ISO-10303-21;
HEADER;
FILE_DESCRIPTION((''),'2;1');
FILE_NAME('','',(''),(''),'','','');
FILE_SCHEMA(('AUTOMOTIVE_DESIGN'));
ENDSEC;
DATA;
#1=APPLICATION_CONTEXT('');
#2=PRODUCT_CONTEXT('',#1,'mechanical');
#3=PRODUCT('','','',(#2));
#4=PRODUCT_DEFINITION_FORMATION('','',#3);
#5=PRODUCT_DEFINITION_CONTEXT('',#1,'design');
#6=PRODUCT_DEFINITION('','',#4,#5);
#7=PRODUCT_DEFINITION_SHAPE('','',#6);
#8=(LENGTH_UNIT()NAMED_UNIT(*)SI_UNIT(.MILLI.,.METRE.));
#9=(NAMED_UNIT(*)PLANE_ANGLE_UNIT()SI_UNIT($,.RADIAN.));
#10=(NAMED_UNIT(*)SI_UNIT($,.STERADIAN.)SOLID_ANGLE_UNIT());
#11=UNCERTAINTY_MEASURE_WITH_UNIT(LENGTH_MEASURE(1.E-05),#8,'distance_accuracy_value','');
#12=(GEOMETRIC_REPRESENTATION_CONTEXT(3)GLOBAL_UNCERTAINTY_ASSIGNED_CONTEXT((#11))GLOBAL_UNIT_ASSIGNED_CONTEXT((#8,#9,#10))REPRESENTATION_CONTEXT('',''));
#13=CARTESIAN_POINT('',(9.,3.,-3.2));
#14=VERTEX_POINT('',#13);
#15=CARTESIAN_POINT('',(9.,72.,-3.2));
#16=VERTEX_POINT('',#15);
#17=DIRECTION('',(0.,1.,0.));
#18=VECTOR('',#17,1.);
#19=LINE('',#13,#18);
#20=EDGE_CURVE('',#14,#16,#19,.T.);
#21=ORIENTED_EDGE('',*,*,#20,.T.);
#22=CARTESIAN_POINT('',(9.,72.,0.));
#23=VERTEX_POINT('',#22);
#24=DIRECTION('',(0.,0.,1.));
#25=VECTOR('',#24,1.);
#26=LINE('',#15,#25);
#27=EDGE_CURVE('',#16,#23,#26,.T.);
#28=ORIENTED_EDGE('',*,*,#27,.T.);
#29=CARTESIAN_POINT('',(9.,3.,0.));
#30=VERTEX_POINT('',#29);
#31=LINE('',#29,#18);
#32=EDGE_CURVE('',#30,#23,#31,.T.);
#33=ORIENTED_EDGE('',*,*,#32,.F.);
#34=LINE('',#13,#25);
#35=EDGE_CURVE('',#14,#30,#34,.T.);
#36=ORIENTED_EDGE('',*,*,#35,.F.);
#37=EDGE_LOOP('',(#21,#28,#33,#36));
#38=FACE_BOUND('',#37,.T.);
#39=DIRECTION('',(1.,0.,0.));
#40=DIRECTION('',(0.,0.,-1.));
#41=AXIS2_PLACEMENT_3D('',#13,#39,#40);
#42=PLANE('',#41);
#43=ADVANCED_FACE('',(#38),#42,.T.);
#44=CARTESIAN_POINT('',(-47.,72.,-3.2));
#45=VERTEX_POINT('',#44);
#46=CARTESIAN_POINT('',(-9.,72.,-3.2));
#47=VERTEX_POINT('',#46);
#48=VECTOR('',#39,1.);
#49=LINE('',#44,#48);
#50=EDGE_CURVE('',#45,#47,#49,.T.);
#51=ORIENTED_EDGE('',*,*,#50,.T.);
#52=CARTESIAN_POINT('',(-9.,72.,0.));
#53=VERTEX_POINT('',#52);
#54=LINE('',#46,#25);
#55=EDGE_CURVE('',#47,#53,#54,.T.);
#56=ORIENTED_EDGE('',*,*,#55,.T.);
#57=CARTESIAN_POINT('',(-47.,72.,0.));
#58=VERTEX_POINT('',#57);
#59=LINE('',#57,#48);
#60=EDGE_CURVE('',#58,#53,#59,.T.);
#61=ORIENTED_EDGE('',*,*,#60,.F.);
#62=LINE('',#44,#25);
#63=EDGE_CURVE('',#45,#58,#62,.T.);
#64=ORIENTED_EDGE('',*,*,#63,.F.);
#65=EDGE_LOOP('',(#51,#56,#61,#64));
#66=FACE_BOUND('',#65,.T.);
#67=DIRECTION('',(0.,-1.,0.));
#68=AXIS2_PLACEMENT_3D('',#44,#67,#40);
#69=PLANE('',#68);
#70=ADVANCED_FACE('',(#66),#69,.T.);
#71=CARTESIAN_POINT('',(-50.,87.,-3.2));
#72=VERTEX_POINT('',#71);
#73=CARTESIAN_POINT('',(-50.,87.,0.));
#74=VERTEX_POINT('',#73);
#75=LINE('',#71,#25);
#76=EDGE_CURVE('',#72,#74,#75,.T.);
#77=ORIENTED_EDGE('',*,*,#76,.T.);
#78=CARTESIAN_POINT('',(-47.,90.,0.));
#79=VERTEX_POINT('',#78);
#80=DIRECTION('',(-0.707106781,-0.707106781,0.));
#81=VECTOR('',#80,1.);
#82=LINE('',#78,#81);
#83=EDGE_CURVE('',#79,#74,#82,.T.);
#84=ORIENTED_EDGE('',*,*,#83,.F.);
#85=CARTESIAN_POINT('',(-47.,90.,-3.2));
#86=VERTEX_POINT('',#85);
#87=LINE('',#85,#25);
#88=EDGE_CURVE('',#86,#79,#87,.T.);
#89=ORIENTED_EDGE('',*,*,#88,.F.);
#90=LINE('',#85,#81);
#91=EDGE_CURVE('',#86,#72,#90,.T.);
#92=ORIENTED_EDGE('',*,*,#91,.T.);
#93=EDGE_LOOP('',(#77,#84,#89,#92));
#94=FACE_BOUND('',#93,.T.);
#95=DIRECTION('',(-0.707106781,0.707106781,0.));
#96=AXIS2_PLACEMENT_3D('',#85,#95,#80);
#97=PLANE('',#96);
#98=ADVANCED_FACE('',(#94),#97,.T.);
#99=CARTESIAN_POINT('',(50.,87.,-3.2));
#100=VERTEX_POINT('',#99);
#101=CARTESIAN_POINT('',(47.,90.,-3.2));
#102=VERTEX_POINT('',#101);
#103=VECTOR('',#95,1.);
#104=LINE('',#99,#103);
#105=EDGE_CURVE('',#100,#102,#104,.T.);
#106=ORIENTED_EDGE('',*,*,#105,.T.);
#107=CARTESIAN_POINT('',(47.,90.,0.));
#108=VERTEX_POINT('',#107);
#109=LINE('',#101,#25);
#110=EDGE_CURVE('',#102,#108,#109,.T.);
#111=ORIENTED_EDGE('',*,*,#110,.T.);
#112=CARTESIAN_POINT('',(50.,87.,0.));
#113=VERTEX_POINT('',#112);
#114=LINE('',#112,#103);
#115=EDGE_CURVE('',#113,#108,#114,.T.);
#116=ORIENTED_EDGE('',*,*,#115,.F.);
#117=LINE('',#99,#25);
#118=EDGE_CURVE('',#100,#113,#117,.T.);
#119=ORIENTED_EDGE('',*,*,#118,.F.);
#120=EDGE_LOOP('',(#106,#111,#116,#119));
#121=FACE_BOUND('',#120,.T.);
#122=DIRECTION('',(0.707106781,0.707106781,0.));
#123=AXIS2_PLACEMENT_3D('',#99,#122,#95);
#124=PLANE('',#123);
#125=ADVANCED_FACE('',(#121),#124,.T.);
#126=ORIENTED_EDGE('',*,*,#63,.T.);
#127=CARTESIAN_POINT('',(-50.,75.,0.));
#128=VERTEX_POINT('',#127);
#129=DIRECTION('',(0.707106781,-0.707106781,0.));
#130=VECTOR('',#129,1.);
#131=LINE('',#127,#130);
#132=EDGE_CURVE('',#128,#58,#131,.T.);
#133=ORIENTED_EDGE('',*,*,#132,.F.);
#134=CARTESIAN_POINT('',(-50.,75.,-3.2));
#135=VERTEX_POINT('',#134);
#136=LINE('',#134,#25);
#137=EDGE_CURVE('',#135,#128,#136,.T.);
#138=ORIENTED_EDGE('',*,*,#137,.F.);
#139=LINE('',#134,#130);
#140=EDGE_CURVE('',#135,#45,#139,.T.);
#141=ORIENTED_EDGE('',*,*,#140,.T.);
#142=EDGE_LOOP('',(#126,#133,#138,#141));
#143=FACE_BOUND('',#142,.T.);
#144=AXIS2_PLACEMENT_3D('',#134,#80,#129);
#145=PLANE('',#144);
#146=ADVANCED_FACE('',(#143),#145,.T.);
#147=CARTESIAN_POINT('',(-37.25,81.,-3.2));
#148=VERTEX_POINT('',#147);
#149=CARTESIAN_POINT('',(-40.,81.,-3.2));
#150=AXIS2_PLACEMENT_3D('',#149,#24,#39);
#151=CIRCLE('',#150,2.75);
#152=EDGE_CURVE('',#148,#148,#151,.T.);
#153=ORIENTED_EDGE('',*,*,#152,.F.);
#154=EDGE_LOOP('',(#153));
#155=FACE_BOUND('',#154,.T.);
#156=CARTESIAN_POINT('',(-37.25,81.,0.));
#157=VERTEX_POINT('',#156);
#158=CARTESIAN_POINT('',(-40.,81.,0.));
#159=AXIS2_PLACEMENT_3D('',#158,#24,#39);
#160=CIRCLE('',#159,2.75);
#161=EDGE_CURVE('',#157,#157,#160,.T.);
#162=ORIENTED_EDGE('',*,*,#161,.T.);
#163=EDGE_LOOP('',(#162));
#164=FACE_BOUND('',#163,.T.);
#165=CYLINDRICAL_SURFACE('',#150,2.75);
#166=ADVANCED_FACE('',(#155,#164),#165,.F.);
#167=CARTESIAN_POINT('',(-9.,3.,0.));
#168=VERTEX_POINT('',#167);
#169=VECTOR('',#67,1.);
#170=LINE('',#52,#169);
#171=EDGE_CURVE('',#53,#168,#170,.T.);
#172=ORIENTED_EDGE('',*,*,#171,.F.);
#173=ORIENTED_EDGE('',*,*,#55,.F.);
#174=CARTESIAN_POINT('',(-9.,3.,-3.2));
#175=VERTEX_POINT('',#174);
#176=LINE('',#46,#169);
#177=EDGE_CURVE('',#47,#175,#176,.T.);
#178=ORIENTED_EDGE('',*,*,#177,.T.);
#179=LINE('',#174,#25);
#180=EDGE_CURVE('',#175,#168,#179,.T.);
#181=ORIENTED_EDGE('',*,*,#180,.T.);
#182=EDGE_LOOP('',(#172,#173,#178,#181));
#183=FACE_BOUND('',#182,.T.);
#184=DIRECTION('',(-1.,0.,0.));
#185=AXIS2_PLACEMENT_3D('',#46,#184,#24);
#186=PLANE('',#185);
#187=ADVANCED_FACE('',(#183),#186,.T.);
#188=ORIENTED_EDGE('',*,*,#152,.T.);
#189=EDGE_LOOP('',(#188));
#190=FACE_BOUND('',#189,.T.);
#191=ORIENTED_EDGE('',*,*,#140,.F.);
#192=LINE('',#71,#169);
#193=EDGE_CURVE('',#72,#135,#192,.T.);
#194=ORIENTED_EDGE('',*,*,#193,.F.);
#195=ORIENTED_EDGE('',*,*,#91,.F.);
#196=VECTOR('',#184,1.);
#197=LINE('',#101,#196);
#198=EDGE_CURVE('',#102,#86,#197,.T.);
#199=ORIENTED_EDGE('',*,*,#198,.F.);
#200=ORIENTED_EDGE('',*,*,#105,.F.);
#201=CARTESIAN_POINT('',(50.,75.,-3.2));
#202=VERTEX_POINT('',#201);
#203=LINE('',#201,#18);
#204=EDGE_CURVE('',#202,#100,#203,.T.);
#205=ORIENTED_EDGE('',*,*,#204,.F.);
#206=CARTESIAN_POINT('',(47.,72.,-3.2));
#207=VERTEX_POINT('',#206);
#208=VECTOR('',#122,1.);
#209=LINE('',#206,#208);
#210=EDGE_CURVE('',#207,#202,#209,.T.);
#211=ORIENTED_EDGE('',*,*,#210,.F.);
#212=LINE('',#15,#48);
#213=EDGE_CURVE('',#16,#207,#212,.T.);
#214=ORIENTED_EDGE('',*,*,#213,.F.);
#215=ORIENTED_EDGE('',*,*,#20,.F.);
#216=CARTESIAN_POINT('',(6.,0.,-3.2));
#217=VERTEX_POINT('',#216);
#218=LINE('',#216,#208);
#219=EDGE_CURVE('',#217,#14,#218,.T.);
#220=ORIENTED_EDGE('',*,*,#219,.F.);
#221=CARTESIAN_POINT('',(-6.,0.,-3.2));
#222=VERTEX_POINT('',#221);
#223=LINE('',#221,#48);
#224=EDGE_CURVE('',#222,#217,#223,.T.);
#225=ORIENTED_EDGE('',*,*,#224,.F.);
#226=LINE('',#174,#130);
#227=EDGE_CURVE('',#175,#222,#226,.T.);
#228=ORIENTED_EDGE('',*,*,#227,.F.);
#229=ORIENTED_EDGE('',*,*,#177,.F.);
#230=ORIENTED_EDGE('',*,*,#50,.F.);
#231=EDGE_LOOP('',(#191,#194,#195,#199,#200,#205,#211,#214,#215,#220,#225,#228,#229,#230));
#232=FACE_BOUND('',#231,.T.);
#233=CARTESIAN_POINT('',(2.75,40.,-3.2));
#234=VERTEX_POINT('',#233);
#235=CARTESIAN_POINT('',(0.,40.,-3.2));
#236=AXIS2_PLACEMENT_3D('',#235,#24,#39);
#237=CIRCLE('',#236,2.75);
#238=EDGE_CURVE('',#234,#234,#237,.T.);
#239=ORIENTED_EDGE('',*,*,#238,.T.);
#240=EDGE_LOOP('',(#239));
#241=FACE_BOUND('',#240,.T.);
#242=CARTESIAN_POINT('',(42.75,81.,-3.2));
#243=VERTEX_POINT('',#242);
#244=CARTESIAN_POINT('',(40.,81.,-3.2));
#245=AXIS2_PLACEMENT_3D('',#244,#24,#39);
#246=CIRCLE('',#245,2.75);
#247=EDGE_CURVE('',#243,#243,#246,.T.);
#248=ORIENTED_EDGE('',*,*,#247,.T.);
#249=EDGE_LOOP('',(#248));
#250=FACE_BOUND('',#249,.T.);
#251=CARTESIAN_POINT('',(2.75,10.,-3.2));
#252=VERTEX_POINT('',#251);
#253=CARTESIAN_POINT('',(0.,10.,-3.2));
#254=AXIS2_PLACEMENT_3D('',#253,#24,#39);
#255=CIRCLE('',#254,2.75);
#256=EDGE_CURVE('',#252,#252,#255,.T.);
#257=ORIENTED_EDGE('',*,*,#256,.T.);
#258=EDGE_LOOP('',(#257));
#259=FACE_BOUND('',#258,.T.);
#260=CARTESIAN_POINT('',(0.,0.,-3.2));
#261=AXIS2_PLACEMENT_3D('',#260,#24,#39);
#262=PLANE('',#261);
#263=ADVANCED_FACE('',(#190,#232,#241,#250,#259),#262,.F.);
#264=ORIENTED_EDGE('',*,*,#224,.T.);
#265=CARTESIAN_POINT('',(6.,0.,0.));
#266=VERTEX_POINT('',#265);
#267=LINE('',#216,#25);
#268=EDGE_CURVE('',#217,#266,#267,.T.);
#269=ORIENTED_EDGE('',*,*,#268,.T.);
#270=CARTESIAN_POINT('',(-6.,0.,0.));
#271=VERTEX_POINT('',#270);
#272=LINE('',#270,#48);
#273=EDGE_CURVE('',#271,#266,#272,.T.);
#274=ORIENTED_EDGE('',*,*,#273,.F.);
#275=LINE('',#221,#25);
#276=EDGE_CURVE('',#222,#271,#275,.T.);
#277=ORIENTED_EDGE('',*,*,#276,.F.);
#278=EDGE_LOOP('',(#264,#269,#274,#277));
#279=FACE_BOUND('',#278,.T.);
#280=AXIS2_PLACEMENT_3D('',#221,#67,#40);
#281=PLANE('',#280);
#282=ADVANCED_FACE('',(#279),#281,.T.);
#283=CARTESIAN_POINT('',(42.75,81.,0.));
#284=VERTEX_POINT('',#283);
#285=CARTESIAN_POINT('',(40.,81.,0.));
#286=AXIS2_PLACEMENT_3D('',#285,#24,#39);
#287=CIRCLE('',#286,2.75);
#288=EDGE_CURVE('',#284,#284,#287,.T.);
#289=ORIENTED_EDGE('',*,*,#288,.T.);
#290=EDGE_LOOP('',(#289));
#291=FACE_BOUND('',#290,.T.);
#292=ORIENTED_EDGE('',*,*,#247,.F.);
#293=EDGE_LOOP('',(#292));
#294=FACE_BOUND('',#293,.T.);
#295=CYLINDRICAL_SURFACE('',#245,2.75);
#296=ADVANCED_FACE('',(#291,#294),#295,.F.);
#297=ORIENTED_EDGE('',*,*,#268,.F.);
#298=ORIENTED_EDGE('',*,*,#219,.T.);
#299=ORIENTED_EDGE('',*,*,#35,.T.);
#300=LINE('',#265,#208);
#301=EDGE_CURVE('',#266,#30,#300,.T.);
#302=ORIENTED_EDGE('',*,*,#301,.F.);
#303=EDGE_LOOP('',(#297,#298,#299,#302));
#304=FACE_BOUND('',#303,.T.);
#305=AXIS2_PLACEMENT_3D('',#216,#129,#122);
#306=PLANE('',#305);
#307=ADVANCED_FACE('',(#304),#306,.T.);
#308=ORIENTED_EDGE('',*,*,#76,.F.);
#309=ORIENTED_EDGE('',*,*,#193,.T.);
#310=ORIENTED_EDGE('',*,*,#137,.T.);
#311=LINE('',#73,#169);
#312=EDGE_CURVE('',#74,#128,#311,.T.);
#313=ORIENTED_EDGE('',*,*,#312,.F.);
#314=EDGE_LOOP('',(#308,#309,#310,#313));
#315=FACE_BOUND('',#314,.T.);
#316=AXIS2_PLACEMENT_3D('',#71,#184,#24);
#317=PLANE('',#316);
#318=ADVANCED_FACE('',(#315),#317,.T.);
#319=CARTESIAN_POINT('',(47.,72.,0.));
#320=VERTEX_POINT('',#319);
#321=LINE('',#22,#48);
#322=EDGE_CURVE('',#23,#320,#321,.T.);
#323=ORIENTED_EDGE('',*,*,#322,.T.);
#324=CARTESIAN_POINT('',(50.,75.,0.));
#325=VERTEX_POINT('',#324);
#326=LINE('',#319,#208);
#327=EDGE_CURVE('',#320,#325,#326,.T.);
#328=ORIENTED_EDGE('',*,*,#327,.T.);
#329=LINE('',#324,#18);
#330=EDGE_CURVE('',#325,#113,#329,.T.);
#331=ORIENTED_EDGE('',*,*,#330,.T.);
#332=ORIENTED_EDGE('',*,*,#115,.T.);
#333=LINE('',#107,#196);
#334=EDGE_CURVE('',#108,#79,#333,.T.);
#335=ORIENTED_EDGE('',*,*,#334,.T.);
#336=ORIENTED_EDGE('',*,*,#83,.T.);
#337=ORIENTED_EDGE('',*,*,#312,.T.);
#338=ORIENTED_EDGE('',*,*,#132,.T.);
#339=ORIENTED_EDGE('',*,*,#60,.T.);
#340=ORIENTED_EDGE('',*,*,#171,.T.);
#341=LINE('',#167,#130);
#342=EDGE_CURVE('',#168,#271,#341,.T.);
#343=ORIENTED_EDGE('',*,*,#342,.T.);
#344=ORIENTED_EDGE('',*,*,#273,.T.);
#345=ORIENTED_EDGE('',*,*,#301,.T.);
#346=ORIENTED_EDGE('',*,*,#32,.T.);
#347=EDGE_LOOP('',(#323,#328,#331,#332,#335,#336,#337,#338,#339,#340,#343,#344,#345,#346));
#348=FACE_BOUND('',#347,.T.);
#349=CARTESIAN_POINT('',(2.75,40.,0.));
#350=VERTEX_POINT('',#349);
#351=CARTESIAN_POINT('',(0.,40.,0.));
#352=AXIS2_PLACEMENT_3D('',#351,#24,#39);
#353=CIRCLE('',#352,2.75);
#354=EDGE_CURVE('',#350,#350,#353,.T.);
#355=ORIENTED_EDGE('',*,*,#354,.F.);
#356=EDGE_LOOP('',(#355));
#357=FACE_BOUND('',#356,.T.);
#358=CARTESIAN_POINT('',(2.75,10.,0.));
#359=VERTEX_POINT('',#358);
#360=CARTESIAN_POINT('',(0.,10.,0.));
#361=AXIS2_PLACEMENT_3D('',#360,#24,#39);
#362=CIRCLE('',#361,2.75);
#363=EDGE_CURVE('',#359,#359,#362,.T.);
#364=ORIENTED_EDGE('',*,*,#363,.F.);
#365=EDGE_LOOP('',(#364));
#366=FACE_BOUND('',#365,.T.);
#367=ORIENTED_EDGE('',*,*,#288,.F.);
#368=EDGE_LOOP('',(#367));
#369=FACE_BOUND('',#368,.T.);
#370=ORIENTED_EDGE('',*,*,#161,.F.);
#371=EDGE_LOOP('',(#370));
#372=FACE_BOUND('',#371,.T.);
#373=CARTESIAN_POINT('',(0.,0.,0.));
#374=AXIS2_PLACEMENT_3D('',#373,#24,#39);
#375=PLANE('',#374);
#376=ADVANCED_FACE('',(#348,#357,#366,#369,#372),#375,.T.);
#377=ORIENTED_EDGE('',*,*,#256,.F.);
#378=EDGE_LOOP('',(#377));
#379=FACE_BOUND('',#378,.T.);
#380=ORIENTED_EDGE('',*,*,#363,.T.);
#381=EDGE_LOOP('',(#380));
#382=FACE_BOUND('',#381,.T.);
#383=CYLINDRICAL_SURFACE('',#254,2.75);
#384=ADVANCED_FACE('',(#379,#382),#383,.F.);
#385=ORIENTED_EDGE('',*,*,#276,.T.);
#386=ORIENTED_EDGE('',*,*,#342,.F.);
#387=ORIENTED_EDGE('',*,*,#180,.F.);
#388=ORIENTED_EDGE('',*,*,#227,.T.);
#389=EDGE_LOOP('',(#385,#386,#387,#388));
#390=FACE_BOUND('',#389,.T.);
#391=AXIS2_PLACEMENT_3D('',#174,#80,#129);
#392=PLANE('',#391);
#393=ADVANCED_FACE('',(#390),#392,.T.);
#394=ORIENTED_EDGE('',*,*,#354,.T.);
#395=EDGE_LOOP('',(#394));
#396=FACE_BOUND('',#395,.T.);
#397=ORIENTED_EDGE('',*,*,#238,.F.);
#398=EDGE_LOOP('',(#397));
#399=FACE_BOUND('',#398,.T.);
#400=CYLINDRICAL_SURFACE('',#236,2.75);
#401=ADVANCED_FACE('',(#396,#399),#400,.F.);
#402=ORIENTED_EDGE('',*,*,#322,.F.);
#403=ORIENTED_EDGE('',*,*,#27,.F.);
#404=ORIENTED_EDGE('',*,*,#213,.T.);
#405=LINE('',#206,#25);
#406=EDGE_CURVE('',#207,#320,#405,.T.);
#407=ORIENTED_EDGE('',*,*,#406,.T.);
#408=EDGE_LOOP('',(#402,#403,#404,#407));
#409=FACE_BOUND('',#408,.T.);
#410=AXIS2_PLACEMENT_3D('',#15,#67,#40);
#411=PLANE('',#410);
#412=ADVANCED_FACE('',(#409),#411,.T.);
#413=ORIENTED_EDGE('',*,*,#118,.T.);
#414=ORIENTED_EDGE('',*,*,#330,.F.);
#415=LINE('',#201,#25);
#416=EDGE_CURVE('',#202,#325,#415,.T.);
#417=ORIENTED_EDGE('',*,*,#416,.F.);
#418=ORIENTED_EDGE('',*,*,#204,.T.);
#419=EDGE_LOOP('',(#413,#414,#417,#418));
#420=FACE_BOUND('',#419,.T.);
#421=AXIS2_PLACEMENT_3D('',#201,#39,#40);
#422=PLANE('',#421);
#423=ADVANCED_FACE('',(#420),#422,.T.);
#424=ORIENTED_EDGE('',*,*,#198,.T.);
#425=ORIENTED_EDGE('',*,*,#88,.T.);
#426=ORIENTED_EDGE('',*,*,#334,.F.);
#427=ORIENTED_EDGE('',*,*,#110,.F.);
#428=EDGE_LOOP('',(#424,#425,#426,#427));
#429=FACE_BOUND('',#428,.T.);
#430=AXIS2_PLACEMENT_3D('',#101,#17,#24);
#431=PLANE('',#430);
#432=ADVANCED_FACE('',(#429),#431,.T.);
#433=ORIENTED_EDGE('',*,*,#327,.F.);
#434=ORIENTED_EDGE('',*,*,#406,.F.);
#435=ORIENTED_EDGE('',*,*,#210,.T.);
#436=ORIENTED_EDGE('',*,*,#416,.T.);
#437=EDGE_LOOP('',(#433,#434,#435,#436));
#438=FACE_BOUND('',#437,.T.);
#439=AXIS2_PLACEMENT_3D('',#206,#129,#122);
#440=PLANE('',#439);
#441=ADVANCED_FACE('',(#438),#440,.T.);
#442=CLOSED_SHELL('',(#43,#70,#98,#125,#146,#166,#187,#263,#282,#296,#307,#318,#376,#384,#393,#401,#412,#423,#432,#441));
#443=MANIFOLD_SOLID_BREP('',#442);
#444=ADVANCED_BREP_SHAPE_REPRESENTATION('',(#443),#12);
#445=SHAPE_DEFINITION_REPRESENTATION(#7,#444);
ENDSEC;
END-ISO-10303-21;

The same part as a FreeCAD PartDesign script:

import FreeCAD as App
import Part
import Sketcher
Q = App.Units.Quantity

doc = App.newDocument("Part")
body = doc.addObject("PartDesign::Body", "Body")

# Sketch on XY plane
sketch1 = body.newObject("Sketcher::SketchObject", "Sketch")
sketch1.AttachmentSupport = (doc.getObject("XY_Plane"), [""])
sketch1.MapMode = "FlatFace"
sketch1.addGeometry(Part.LineSegment(App.Vector(-50, 75, 0), App.Vector(-47, 72, 0)), False)
sketch1.addGeometry(Part.LineSegment(App.Vector(-47, 72, 0), App.Vector(-9, 72, 0)), False)
sketch1.addGeometry(Part.LineSegment(App.Vector(-9, 72, 0), App.Vector(-9, 3, 0)), False)
sketch1.addGeometry(Part.LineSegment(App.Vector(-9, 3, 0), App.Vector(-6, 0, 0)), False)
sketch1.addGeometry(Part.LineSegment(App.Vector(-6, 0, 0), App.Vector(6, 0, 0)), False)
sketch1.addGeometry(Part.LineSegment(App.Vector(6, 0, 0), App.Vector(9, 3, 0)), False)
sketch1.addGeometry(Part.LineSegment(App.Vector(9, 3, 0), App.Vector(9, 72, 0)), False)
sketch1.addGeometry(Part.LineSegment(App.Vector(9, 72, 0), App.Vector(47, 72, 0)), False)
sketch1.addGeometry(Part.LineSegment(App.Vector(47, 72, 0), App.Vector(50, 75, 0)), False)
sketch1.addGeometry(Part.LineSegment(App.Vector(50, 75, 0), App.Vector(50, 87, 0)), False)
sketch1.addGeometry(Part.LineSegment(App.Vector(50, 87, 0), App.Vector(47, 90, 0)), False)
sketch1.addGeometry(Part.LineSegment(App.Vector(47, 90, 0), App.Vector(-47, 90, 0)), False)
sketch1.addGeometry(Part.LineSegment(App.Vector(-47, 90, 0), App.Vector(-50, 87, 0)), False)
sketch1.addGeometry(Part.LineSegment(App.Vector(-50, 87, 0), App.Vector(-50, 75, 0)), False)
sketch1.addGeometry(Part.Circle(App.Vector(0, 10, 0), App.Vector(0, 0, 1), 2.8), False)
sketch1.addGeometry(Part.Circle(App.Vector(0, 40, 0), App.Vector(0, 0, 1), 2.8), False)
sketch1.addGeometry(Part.Circle(App.Vector(-40, 81, 0), App.Vector(0, 0, 1), 2.8), False)
sketch1.addGeometry(Part.Circle(App.Vector(40, 81, 0), App.Vector(0, 0, 1), 2.8), False)
sketch1.addConstraint(Sketcher.Constraint("Coincident", 0, 2, 1, 1))
sketch1.addConstraint(Sketcher.Constraint("Coincident", 1, 2, 2, 1))
sketch1.addConstraint(Sketcher.Constraint("Coincident", 2, 2, 3, 1))
sketch1.addConstraint(Sketcher.Constraint("Coincident", 3, 2, 4, 1))
sketch1.addConstraint(Sketcher.Constraint("Coincident", 4, 2, 5, 1))
sketch1.addConstraint(Sketcher.Constraint("Coincident", 5, 2, 6, 1))
sketch1.addConstraint(Sketcher.Constraint("Coincident", 6, 2, 7, 1))
sketch1.addConstraint(Sketcher.Constraint("Coincident", 7, 2, 8, 1))
sketch1.addConstraint(Sketcher.Constraint("Coincident", 8, 2, 9, 1))
sketch1.addConstraint(Sketcher.Constraint("Coincident", 9, 2, 10, 1))
sketch1.addConstraint(Sketcher.Constraint("Coincident", 10, 2, 11, 1))
sketch1.addConstraint(Sketcher.Constraint("Coincident", 11, 2, 12, 1))
sketch1.addConstraint(Sketcher.Constraint("Coincident", 12, 2, 13, 1))
sketch1.addConstraint(Sketcher.Constraint("Coincident", 13, 2, 0, 1))
sketch1.addConstraint(Sketcher.Constraint("Horizontal", 1))
sketch1.addConstraint(Sketcher.Constraint("Vertical", 2))
sketch1.addConstraint(Sketcher.Constraint("Horizontal", 4))
sketch1.addConstraint(Sketcher.Constraint("Vertical", 6))
sketch1.addConstraint(Sketcher.Constraint("Horizontal", 7))
sketch1.addConstraint(Sketcher.Constraint("Vertical", 9))
sketch1.addConstraint(Sketcher.Constraint("Horizontal", 11))
sketch1.addConstraint(Sketcher.Constraint("Vertical", 13))
sketch1.addConstraint(Sketcher.Constraint("Equal", 14, 15))
sketch1.addConstraint(Sketcher.Constraint("Equal", 15, 16))
sketch1.addConstraint(Sketcher.Constraint("Equal", 16, 17))
sketch1.addConstraint(Sketcher.Constraint("Symmetric", 3, 2, 4, 2, -1, 1))
sketch1.addConstraint(Sketcher.Constraint("Symmetric", 16, 3, 17, 3, -2))
sketch1.addConstraint(Sketcher.Constraint("Symmetric", 2, 2, 5, 2, -2))
sketch1.addConstraint(Sketcher.Constraint("Symmetric", 0, 2, 7, 2, -2))
sketch1.addConstraint(Sketcher.Constraint("Symmetric", 9, 2, 12, 2, -2))
sketch1.addConstraint(Sketcher.Constraint("PointOnObject", 14, 3, -2))
sketch1.addConstraint(Sketcher.Constraint("PointOnObject", 15, 3, -2))
sketch1.addConstraint(Sketcher.Constraint("Parallel", 0, 3))
sketch1.addConstraint(Sketcher.Constraint("Perpendicular", 3, 5))
sketch1.addConstraint(Sketcher.Constraint("Parallel", 5, 8))
sketch1.addConstraint(Sketcher.Constraint("Perpendicular", 8, 10))
sketch1.addConstraint(Sketcher.Constraint("Perpendicular", 10, 12))
sketch1.addConstraint(Sketcher.Constraint("Vertical", 7, 2, 10, 2))
sketch1.addConstraint(Sketcher.Constraint("Equal", 4, 9))
sketch1.addConstraint(Sketcher.Constraint("Equal", 0, 3))
sketch1.addConstraint(Sketcher.Constraint("Diameter", 14, Q("5.5 mm")))
sketch1.addConstraint(Sketcher.Constraint("DistanceX", 1, 1, 1, 2, Q("38 mm")))
sketch1.addConstraint(Sketcher.Constraint("DistanceX", 4, 1, 4, 2, Q("12 mm")))
sketch1.addConstraint(Sketcher.Constraint("DistanceX", 11, 2, 11, 1, Q("94 mm")))
sketch1.addConstraint(Sketcher.Constraint("DistanceY", 2, 2, 2, 1, Q("69 mm")))
sketch1.addConstraint(Sketcher.Constraint("DistanceY", -1, 1, 14, 3, Q("10 mm")))
sketch1.addConstraint(Sketcher.Constraint("DistanceY", -1, 1, 15, 3, Q("40 mm")))
sketch1.addConstraint(Sketcher.Constraint("DistanceX", 16, 3, -1, 1, Q("40 mm")))
sketch1.addConstraint(Sketcher.Constraint("DistanceY", -1, 1, 16, 3, Q("81 mm")))
pad1 = body.newObject("PartDesign::Pad", "Pad")
pad1.Profile = sketch1
pad1.Length = 3.2
pad1.Reversed = True

doc.recompute()
